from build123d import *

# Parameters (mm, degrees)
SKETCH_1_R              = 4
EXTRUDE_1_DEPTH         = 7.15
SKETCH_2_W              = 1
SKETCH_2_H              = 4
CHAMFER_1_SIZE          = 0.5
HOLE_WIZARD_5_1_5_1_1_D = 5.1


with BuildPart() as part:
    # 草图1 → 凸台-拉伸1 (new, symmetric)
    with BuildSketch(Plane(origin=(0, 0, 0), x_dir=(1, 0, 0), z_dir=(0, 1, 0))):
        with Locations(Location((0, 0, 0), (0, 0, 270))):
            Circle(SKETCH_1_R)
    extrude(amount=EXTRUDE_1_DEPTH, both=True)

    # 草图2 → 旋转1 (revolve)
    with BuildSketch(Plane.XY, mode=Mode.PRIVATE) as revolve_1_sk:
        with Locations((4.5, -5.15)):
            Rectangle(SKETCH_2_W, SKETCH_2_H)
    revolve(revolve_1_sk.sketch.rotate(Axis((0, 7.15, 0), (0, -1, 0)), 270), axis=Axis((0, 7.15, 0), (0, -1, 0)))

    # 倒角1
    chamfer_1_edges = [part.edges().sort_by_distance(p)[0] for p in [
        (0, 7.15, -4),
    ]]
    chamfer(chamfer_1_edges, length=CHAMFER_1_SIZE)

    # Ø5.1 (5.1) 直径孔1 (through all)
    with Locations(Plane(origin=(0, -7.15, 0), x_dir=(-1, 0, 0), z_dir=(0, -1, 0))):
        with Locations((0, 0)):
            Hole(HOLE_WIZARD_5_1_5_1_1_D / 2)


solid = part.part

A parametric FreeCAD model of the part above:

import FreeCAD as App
import Part
import Sketcher
from FreeCAD import Vector
Q = App.Units.Quantity


def edges_at(feature, points):
    """Names of the edges that pass closest to the given points."""
    edges = feature.Shape.Edges
    near = lambda p: min(range(len(edges)), key=lambda i: edges[i].distToShape(Part.Vertex(*p))[0])
    return sorted({f"Edge{near(p) + 1}" for p in points})


def add_polygon(sketch, points):
    """Adds a closed chain of lines whose ends are joined by coincident constraints."""
    first, n = sketch.GeometryCount, len(points)
    for a, b in zip(points, points[1:] + points[:1]):
        sketch.addGeometry(Part.LineSegment(App.Vector(*a, 0), App.Vector(*b, 0)), False)
    for i in range(n):
        sketch.addConstraint(Sketcher.Constraint("Coincident", first + i, 2, first + (i + 1) % n, 1))

doc = App.newDocument("Part")
body = doc.addObject("PartDesign::Body", "Body")

# Sketch on XZ plane
sketch1 = body.newObject("Sketcher::SketchObject", "Sketch")
sketch1.AttachmentSupport = (doc.getObject("XZ_Plane"), [""])
sketch1.MapMode = "FlatFace"
sketch1.addGeometry(Part.Circle(Vector(0, 0, 0), Vector(0, 0, 1), 4), False)
sketch1.addConstraint(Sketcher.Constraint("Coincident", 0, 3, -1, 1))
sketch1.addConstraint(Sketcher.Constraint("Diameter", 0, Q("8 mm")))
pad1 = body.newObject("PartDesign::Pad", "Pad")
pad1.Profile = sketch1
pad1.Length = 14.3
pad1.Midplane = True

# Sketch on XY plane
sketch2 = body.newObject("Sketcher::SketchObject", "Sketch001")
sketch2.AttachmentSupport = (doc.getObject("XY_Plane"), [""])
sketch2.MapMode = "FlatFace"
add_polygon(sketch2, [(4, -3.15), (4, -7.15), (5, -7.15), (5, -3.15)])  # lines 0-3
sketch2.addConstraint(Sketcher.Constraint("Vertical", 0))
sketch2.addConstraint(Sketcher.Constraint("Horizontal", 1))
sketch2.addConstraint(Sketcher.Constraint("Vertical", 2))
sketch2.addConstraint(Sketcher.Constraint("Horizontal", 3))
sketch2.addConstraint(Sketcher.Constraint("DistanceX", 1, 1, 1, 2, Q("1 mm")))
sketch2.addConstraint(Sketcher.Constraint("DistanceY", 0, 2, 0, 1, Q("4 mm")))
sketch2.addConstraint(Sketcher.Constraint("DistanceX", -1, 1, 0, 2, Q("4 mm")))
sketch2.addConstraint(Sketcher.Constraint("DistanceY", 0, 2, -1, 1, Q("7.15 mm")))
revolution = body.newObject("PartDesign::Revolution", "Revolution")
revolution.Profile = sketch2
revolution.ReferenceAxis = (sketch2, ["V_Axis"])
revolution.Angle = 360
doc.recompute()

chamfer = body.newObject("PartDesign::Chamfer", "Chamfer")
chamfer.Base = (revolution, edges_at(revolution, [(0, 7.15, -4)]))
chamfer.Size = 0.5

# Sketch on XZ plane
sketch3 = body.newObject("Sketcher::SketchObject", "Sketch002")
sketch3.AttachmentSupport = (doc.getObject("XZ_Plane"), [""])
sketch3.MapMode = "FlatFace"
sketch3.AttachmentOffset = App.Placement(Vector(0, 0, 7.15), App.Rotation())
sketch3.addGeometry(Part.Circle(Vector(0, 0, 0), Vector(0, 0, 1), 2.55), False)
sketch3.addConstraint(Sketcher.Constraint("Coincident", 0, 3, -1, 1))
sketch3.addConstraint(Sketcher.Constraint("Diameter", 0, Q("5.1 mm")))
doc.recompute()
hole = body.newObject("PartDesign::Hole", "Hole")
hole.Profile = sketch3
hole.ThreadType = "None"
hole.Diameter = 5.1
hole.DepthType = "ThroughAll"

doc.recompute()
